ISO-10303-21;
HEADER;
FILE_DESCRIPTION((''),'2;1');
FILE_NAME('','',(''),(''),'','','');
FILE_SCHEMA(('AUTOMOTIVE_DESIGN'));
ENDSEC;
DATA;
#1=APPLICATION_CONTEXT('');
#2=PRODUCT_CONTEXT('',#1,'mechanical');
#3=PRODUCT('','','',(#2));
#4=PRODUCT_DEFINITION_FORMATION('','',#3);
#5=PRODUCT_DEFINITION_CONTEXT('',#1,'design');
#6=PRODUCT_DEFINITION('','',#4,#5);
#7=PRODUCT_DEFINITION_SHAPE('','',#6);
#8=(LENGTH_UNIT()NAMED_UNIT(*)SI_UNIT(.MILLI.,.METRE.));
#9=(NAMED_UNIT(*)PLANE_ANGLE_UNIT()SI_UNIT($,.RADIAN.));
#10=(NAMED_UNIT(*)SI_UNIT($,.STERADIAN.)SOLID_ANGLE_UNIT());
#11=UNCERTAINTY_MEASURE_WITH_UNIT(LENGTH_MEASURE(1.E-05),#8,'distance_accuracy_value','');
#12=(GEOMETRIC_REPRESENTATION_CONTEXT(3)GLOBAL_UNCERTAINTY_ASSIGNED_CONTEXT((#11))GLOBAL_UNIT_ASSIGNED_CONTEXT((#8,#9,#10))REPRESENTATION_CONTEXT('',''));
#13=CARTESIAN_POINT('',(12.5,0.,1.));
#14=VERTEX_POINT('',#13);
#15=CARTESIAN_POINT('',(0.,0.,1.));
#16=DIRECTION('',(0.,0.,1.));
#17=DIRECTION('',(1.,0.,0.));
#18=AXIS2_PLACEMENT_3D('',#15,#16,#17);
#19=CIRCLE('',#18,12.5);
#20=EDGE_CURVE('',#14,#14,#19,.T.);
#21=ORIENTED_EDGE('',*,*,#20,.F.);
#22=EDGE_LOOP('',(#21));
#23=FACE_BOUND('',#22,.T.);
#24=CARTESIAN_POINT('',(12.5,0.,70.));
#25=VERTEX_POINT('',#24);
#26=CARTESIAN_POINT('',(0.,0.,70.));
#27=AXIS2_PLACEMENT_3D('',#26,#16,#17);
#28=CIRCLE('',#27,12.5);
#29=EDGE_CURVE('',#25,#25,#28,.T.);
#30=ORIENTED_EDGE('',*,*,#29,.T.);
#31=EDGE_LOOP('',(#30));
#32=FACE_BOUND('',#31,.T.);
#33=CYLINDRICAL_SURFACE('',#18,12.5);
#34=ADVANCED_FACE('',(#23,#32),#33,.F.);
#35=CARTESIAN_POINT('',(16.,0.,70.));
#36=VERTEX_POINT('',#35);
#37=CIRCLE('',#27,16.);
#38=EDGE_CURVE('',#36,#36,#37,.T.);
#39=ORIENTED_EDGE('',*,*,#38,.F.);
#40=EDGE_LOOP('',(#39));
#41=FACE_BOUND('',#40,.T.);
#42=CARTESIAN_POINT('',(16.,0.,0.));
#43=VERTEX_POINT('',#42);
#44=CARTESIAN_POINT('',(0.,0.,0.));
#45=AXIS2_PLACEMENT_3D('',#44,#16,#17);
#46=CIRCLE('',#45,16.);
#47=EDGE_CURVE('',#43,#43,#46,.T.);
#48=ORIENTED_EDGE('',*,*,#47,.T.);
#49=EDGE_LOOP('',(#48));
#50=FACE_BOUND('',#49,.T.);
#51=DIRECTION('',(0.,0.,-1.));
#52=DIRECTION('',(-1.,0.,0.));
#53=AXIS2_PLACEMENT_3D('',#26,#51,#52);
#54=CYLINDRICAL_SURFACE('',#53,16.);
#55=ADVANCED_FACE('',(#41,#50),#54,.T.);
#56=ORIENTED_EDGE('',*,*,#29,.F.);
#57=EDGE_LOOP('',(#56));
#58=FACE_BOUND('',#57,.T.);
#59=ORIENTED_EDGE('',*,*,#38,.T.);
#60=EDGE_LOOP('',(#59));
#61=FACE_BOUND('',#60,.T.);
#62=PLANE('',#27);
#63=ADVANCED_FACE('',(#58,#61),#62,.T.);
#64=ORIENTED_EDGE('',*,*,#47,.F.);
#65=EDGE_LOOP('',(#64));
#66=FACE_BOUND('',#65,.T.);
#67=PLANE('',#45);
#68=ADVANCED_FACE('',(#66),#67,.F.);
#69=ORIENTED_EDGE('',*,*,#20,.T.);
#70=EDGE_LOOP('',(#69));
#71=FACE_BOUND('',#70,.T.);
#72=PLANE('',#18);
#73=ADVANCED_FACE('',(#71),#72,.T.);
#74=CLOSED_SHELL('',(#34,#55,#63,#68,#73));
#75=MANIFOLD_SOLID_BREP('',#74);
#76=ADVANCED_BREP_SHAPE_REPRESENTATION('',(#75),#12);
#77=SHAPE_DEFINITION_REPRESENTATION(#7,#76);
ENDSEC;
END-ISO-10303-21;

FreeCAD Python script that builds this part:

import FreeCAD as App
import Part
import Sketcher
Q = App.Units.Quantity

doc = App.newDocument("Part")
body = doc.addObject("PartDesign::Body", "Body")

# Sketch on XY plane
sketch1 = body.newObject("Sketcher::SketchObject", "Sketch")
sketch1.AttachmentSupport = (doc.getObject("XY_Plane"), [""])
sketch1.MapMode = "FlatFace"
sketch1.addGeometry(Part.Circle(App.Vector(0, 0, 0), App.Vector(0, 0, 1), 16), False)
sketch1.addConstraint([
    Sketcher.Constraint("Coincident", 0, 3, -1, 1),
    Sketcher.Constraint("Diameter", 0, Q("32 mm")),
])
pad1 = body.newObject("PartDesign::Pad", "Pad")
pad1.Profile = sketch1
pad1.Length = 70

# Sketch on XY plane
sketch2 = body.newObject("Sketcher::SketchObject", "Sketch001")
sketch2.AttachmentSupport = (doc.getObject("XY_Plane"), [""])
sketch2.MapMode = "FlatFace"
sketch2.AttachmentOffset = App.Placement(App.Vector(0, 0, 70), App.Rotation())
sketch2.addGeometry(Part.Circle(App.Vector(0, 0, 0), App.Vector(0, 0, 1), 12), False)
sketch2.addConstraint([
    Sketcher.Constraint("Coincident", 0, 3, -1, 1),
    Sketcher.Constraint("Diameter", 0, Q("25 mm")),
])
pocket1 = body.newObject("PartDesign::Pocket", "Pocket")
pocket1.Profile = sketch2
pocket1.Length = 69

doc.recompute()
